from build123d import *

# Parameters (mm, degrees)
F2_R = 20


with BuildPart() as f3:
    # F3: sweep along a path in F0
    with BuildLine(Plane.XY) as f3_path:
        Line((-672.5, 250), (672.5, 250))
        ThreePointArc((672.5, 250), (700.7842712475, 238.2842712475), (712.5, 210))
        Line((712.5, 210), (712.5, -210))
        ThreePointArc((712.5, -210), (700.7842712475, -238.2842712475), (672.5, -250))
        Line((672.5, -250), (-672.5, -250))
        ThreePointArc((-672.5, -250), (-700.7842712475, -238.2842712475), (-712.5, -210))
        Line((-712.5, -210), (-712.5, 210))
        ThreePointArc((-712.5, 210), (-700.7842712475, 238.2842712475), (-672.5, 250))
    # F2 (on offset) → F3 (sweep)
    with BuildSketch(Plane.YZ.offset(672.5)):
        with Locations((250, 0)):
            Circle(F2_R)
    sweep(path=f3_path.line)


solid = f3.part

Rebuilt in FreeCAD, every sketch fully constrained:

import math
import FreeCAD as App
import Part
import Sketcher

doc = App.newDocument("Part")
body = doc.addObject("PartDesign::Body", "Body")

# Sketch on YZ plane
sketch1 = body.newObject("Sketcher::SketchObject", "Sketch")
sketch1.AttachmentSupport = (doc.getObject("YZ_Plane"), [""])
sketch1.MapMode = "FlatFace"
sketch1.AttachmentOffset = App.Placement(App.Vector(0, 0, 672.5), App.Rotation())
sketch1.addGeometry(Part.Circle(App.Vector(250, 0, 0), App.Vector(0, 0, 1), 20), False)
sketch1.addConstraint(Sketcher.Constraint("PointOnObject", 0, 3, -1))
sketch1.addConstraint(Sketcher.Constraint("Diameter", 0, 40.0))
sketch1.addConstraint(Sketcher.Constraint("DistanceX", -1, 1, 0, 3, 250.0))

# Sketch on XY plane
sketch2 = body.newObject("Sketcher::SketchObject", "Sketch001")
sketch2.AttachmentSupport = (doc.getObject("XY_Plane"), [""])
sketch2.MapMode = "FlatFace"
sketch2.addGeometry(Part.LineSegment(App.Vector(-672, 250, 0), App.Vector(672, 250, 0)), False)
sketch2.addGeometry(Part.ArcOfCircle(Part.Circle(App.Vector(672, 210, 0), App.Vector(0, 0, 1), 40), math.radians(0), math.radians(90)), False)
sketch2.addGeometry(Part.LineSegment(App.Vector(712, 210, 0), App.Vector(712, -210, 0)), False)
sketch2.addGeometry(Part.ArcOfCircle(Part.Circle(App.Vector(672, -210, 0), App.Vector(0, 0, 1), 40), math.radians(-90), math.radians(0)), False)
sketch2.addGeometry(Part.LineSegment(App.Vector(672, -250, 0), App.Vector(-672, -250, 0)), False)
sketch2.addGeometry(Part.ArcOfCircle(Part.Circle(App.Vector(-672, -210, 0), App.Vector(0, 0, 1), 40), math.radians(180), math.radians(270)), False)
sketch2.addGeometry(Part.LineSegment(App.Vector(-712, -210, 0), App.Vector(-712, 210, 0)), False)
sketch2.addGeometry(Part.ArcOfCircle(Part.Circle(App.Vector(-672, 210, 0), App.Vector(0, 0, 1), 40), math.radians(90), math.radians(180)), False)
sketch2.addConstraint(Sketcher.Constraint("Tangent", 0, 2, 1, 2))
sketch2.addConstraint(Sketcher.Constraint("Tangent", 1, 1, 2, 1))
sketch2.addConstraint(Sketcher.Constraint("Tangent", 2, 2, 3, 2))
sketch2.addConstraint(Sketcher.Constraint("Tangent", 3, 1, 4, 1))
sketch2.addConstraint(Sketcher.Constraint("Tangent", 4, 2, 5, 2))
sketch2.addConstraint(Sketcher.Constraint("Tangent", 5, 1, 6, 1))
sketch2.addConstraint(Sketcher.Constraint("Tangent", 6, 2, 7, 2))
sketch2.addConstraint(Sketcher.Constraint("Tangent", 7, 1, 0, 1))
sketch2.addConstraint(Sketcher.Constraint("Horizontal", 0))
sketch2.addConstraint(Sketcher.Constraint("Vertical", 2))
sketch2.addConstraint(Sketcher.Constraint("Horizontal", 4))
sketch2.addConstraint(Sketcher.Constraint("Vertical", 6))
sketch2.addConstraint(Sketcher.Constraint("Equal", 1, 3))
sketch2.addConstraint(Sketcher.Constraint("Equal", 3, 5))
sketch2.addConstraint(Sketcher.Constraint("Equal", 5, 7))
sketch2.addConstraint(Sketcher.Constraint("Symmetric", 1, 3, 5, 3, -1, 1))
sketch2.addConstraint(Sketcher.Constraint("Radius", 1, 40.0))
sketch2.addConstraint(Sketcher.Constraint("DistanceX", 0, 1, 0, 2, 1345.0))
sketch2.addConstraint(Sketcher.Constraint("DistanceY", 2, 2, 2, 1, 420.0))
doc.recompute()

additivepipe = body.newObject("PartDesign::AdditivePipe", "AdditivePipe")
additivepipe.Profile = sketch1
additivepipe.Spine = (sketch2, ["Edge1", "Edge2", "Edge3", "Edge4", "Edge5", "Edge6", "Edge7", "Edge8"])

doc.recompute()
